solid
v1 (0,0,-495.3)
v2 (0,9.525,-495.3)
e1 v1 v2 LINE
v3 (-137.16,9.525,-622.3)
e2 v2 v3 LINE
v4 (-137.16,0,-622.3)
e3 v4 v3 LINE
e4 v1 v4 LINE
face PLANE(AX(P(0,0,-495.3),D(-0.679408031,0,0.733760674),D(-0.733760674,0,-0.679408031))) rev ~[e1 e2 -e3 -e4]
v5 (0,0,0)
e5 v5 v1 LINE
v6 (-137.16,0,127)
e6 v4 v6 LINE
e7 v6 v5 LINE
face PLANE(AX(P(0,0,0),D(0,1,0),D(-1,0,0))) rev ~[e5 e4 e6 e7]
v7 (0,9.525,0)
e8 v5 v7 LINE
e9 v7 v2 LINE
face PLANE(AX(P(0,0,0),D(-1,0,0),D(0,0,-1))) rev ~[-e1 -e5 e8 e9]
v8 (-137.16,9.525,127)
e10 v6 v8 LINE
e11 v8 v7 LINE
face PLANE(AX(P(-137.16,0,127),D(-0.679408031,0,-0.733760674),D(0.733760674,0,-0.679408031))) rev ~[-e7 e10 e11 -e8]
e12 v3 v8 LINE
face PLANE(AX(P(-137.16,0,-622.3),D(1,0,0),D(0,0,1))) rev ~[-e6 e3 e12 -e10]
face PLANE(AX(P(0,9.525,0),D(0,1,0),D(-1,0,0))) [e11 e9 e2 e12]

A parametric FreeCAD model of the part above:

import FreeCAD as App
import Part
import Sketcher

V = App.Vector
Q = App.Units.Quantity

doc = App.newDocument("Part")
body = doc.addObject("PartDesign::Body", "Body")

# Sketch on XZ plane
sketch1 = body.newObject("Sketcher::SketchObject", "Sketch")
sketch1.AttachmentSupport = (doc.getObject("XZ_Plane"), [""])
sketch1.MapMode = "FlatFace"
sketch1.addGeometry([
    Part.LineSegment(V(-137, 127, 0), V(0, 0, 0)),
    Part.LineSegment(V(0, 0, 0), V(0, -495, 0)),
    Part.LineSegment(V(0, -495, 0), V(-137, -622, 0)),
    Part.LineSegment(V(-137, -622, 0), V(-137, 127, 0)),
], False)
sketch1.addConstraint([
    Sketcher.Constraint("Coincident", 0, 2, 1, 1),
    Sketcher.Constraint("Coincident", 1, 2, 2, 1),
    Sketcher.Constraint("Coincident", 2, 2, 3, 1),
    Sketcher.Constraint("Coincident", 3, 2, 0, 1),
    Sketcher.Constraint("Vertical", 1),
    Sketcher.Constraint("Vertical", 3),
    Sketcher.Constraint("Coincident", 0, 2, -1, 1),
    Sketcher.Constraint("Equal", 0, 2),
    Sketcher.Constraint("DistanceY", 1, 2, 1, 1, Q("19.5 in")),
    Sketcher.Constraint("DistanceY", 3, 1, 3, 2, Q("29.5 in")),
    Sketcher.Constraint("DistanceX", 2, 2, -1, 1, Q("5.4 in")),
])
pad1 = body.newObject("PartDesign::Pad", "Pad")
pad1.Profile = sketch1
pad1.Length = Q("0.375 in")
pad1.Reversed = True

doc.recompute()
